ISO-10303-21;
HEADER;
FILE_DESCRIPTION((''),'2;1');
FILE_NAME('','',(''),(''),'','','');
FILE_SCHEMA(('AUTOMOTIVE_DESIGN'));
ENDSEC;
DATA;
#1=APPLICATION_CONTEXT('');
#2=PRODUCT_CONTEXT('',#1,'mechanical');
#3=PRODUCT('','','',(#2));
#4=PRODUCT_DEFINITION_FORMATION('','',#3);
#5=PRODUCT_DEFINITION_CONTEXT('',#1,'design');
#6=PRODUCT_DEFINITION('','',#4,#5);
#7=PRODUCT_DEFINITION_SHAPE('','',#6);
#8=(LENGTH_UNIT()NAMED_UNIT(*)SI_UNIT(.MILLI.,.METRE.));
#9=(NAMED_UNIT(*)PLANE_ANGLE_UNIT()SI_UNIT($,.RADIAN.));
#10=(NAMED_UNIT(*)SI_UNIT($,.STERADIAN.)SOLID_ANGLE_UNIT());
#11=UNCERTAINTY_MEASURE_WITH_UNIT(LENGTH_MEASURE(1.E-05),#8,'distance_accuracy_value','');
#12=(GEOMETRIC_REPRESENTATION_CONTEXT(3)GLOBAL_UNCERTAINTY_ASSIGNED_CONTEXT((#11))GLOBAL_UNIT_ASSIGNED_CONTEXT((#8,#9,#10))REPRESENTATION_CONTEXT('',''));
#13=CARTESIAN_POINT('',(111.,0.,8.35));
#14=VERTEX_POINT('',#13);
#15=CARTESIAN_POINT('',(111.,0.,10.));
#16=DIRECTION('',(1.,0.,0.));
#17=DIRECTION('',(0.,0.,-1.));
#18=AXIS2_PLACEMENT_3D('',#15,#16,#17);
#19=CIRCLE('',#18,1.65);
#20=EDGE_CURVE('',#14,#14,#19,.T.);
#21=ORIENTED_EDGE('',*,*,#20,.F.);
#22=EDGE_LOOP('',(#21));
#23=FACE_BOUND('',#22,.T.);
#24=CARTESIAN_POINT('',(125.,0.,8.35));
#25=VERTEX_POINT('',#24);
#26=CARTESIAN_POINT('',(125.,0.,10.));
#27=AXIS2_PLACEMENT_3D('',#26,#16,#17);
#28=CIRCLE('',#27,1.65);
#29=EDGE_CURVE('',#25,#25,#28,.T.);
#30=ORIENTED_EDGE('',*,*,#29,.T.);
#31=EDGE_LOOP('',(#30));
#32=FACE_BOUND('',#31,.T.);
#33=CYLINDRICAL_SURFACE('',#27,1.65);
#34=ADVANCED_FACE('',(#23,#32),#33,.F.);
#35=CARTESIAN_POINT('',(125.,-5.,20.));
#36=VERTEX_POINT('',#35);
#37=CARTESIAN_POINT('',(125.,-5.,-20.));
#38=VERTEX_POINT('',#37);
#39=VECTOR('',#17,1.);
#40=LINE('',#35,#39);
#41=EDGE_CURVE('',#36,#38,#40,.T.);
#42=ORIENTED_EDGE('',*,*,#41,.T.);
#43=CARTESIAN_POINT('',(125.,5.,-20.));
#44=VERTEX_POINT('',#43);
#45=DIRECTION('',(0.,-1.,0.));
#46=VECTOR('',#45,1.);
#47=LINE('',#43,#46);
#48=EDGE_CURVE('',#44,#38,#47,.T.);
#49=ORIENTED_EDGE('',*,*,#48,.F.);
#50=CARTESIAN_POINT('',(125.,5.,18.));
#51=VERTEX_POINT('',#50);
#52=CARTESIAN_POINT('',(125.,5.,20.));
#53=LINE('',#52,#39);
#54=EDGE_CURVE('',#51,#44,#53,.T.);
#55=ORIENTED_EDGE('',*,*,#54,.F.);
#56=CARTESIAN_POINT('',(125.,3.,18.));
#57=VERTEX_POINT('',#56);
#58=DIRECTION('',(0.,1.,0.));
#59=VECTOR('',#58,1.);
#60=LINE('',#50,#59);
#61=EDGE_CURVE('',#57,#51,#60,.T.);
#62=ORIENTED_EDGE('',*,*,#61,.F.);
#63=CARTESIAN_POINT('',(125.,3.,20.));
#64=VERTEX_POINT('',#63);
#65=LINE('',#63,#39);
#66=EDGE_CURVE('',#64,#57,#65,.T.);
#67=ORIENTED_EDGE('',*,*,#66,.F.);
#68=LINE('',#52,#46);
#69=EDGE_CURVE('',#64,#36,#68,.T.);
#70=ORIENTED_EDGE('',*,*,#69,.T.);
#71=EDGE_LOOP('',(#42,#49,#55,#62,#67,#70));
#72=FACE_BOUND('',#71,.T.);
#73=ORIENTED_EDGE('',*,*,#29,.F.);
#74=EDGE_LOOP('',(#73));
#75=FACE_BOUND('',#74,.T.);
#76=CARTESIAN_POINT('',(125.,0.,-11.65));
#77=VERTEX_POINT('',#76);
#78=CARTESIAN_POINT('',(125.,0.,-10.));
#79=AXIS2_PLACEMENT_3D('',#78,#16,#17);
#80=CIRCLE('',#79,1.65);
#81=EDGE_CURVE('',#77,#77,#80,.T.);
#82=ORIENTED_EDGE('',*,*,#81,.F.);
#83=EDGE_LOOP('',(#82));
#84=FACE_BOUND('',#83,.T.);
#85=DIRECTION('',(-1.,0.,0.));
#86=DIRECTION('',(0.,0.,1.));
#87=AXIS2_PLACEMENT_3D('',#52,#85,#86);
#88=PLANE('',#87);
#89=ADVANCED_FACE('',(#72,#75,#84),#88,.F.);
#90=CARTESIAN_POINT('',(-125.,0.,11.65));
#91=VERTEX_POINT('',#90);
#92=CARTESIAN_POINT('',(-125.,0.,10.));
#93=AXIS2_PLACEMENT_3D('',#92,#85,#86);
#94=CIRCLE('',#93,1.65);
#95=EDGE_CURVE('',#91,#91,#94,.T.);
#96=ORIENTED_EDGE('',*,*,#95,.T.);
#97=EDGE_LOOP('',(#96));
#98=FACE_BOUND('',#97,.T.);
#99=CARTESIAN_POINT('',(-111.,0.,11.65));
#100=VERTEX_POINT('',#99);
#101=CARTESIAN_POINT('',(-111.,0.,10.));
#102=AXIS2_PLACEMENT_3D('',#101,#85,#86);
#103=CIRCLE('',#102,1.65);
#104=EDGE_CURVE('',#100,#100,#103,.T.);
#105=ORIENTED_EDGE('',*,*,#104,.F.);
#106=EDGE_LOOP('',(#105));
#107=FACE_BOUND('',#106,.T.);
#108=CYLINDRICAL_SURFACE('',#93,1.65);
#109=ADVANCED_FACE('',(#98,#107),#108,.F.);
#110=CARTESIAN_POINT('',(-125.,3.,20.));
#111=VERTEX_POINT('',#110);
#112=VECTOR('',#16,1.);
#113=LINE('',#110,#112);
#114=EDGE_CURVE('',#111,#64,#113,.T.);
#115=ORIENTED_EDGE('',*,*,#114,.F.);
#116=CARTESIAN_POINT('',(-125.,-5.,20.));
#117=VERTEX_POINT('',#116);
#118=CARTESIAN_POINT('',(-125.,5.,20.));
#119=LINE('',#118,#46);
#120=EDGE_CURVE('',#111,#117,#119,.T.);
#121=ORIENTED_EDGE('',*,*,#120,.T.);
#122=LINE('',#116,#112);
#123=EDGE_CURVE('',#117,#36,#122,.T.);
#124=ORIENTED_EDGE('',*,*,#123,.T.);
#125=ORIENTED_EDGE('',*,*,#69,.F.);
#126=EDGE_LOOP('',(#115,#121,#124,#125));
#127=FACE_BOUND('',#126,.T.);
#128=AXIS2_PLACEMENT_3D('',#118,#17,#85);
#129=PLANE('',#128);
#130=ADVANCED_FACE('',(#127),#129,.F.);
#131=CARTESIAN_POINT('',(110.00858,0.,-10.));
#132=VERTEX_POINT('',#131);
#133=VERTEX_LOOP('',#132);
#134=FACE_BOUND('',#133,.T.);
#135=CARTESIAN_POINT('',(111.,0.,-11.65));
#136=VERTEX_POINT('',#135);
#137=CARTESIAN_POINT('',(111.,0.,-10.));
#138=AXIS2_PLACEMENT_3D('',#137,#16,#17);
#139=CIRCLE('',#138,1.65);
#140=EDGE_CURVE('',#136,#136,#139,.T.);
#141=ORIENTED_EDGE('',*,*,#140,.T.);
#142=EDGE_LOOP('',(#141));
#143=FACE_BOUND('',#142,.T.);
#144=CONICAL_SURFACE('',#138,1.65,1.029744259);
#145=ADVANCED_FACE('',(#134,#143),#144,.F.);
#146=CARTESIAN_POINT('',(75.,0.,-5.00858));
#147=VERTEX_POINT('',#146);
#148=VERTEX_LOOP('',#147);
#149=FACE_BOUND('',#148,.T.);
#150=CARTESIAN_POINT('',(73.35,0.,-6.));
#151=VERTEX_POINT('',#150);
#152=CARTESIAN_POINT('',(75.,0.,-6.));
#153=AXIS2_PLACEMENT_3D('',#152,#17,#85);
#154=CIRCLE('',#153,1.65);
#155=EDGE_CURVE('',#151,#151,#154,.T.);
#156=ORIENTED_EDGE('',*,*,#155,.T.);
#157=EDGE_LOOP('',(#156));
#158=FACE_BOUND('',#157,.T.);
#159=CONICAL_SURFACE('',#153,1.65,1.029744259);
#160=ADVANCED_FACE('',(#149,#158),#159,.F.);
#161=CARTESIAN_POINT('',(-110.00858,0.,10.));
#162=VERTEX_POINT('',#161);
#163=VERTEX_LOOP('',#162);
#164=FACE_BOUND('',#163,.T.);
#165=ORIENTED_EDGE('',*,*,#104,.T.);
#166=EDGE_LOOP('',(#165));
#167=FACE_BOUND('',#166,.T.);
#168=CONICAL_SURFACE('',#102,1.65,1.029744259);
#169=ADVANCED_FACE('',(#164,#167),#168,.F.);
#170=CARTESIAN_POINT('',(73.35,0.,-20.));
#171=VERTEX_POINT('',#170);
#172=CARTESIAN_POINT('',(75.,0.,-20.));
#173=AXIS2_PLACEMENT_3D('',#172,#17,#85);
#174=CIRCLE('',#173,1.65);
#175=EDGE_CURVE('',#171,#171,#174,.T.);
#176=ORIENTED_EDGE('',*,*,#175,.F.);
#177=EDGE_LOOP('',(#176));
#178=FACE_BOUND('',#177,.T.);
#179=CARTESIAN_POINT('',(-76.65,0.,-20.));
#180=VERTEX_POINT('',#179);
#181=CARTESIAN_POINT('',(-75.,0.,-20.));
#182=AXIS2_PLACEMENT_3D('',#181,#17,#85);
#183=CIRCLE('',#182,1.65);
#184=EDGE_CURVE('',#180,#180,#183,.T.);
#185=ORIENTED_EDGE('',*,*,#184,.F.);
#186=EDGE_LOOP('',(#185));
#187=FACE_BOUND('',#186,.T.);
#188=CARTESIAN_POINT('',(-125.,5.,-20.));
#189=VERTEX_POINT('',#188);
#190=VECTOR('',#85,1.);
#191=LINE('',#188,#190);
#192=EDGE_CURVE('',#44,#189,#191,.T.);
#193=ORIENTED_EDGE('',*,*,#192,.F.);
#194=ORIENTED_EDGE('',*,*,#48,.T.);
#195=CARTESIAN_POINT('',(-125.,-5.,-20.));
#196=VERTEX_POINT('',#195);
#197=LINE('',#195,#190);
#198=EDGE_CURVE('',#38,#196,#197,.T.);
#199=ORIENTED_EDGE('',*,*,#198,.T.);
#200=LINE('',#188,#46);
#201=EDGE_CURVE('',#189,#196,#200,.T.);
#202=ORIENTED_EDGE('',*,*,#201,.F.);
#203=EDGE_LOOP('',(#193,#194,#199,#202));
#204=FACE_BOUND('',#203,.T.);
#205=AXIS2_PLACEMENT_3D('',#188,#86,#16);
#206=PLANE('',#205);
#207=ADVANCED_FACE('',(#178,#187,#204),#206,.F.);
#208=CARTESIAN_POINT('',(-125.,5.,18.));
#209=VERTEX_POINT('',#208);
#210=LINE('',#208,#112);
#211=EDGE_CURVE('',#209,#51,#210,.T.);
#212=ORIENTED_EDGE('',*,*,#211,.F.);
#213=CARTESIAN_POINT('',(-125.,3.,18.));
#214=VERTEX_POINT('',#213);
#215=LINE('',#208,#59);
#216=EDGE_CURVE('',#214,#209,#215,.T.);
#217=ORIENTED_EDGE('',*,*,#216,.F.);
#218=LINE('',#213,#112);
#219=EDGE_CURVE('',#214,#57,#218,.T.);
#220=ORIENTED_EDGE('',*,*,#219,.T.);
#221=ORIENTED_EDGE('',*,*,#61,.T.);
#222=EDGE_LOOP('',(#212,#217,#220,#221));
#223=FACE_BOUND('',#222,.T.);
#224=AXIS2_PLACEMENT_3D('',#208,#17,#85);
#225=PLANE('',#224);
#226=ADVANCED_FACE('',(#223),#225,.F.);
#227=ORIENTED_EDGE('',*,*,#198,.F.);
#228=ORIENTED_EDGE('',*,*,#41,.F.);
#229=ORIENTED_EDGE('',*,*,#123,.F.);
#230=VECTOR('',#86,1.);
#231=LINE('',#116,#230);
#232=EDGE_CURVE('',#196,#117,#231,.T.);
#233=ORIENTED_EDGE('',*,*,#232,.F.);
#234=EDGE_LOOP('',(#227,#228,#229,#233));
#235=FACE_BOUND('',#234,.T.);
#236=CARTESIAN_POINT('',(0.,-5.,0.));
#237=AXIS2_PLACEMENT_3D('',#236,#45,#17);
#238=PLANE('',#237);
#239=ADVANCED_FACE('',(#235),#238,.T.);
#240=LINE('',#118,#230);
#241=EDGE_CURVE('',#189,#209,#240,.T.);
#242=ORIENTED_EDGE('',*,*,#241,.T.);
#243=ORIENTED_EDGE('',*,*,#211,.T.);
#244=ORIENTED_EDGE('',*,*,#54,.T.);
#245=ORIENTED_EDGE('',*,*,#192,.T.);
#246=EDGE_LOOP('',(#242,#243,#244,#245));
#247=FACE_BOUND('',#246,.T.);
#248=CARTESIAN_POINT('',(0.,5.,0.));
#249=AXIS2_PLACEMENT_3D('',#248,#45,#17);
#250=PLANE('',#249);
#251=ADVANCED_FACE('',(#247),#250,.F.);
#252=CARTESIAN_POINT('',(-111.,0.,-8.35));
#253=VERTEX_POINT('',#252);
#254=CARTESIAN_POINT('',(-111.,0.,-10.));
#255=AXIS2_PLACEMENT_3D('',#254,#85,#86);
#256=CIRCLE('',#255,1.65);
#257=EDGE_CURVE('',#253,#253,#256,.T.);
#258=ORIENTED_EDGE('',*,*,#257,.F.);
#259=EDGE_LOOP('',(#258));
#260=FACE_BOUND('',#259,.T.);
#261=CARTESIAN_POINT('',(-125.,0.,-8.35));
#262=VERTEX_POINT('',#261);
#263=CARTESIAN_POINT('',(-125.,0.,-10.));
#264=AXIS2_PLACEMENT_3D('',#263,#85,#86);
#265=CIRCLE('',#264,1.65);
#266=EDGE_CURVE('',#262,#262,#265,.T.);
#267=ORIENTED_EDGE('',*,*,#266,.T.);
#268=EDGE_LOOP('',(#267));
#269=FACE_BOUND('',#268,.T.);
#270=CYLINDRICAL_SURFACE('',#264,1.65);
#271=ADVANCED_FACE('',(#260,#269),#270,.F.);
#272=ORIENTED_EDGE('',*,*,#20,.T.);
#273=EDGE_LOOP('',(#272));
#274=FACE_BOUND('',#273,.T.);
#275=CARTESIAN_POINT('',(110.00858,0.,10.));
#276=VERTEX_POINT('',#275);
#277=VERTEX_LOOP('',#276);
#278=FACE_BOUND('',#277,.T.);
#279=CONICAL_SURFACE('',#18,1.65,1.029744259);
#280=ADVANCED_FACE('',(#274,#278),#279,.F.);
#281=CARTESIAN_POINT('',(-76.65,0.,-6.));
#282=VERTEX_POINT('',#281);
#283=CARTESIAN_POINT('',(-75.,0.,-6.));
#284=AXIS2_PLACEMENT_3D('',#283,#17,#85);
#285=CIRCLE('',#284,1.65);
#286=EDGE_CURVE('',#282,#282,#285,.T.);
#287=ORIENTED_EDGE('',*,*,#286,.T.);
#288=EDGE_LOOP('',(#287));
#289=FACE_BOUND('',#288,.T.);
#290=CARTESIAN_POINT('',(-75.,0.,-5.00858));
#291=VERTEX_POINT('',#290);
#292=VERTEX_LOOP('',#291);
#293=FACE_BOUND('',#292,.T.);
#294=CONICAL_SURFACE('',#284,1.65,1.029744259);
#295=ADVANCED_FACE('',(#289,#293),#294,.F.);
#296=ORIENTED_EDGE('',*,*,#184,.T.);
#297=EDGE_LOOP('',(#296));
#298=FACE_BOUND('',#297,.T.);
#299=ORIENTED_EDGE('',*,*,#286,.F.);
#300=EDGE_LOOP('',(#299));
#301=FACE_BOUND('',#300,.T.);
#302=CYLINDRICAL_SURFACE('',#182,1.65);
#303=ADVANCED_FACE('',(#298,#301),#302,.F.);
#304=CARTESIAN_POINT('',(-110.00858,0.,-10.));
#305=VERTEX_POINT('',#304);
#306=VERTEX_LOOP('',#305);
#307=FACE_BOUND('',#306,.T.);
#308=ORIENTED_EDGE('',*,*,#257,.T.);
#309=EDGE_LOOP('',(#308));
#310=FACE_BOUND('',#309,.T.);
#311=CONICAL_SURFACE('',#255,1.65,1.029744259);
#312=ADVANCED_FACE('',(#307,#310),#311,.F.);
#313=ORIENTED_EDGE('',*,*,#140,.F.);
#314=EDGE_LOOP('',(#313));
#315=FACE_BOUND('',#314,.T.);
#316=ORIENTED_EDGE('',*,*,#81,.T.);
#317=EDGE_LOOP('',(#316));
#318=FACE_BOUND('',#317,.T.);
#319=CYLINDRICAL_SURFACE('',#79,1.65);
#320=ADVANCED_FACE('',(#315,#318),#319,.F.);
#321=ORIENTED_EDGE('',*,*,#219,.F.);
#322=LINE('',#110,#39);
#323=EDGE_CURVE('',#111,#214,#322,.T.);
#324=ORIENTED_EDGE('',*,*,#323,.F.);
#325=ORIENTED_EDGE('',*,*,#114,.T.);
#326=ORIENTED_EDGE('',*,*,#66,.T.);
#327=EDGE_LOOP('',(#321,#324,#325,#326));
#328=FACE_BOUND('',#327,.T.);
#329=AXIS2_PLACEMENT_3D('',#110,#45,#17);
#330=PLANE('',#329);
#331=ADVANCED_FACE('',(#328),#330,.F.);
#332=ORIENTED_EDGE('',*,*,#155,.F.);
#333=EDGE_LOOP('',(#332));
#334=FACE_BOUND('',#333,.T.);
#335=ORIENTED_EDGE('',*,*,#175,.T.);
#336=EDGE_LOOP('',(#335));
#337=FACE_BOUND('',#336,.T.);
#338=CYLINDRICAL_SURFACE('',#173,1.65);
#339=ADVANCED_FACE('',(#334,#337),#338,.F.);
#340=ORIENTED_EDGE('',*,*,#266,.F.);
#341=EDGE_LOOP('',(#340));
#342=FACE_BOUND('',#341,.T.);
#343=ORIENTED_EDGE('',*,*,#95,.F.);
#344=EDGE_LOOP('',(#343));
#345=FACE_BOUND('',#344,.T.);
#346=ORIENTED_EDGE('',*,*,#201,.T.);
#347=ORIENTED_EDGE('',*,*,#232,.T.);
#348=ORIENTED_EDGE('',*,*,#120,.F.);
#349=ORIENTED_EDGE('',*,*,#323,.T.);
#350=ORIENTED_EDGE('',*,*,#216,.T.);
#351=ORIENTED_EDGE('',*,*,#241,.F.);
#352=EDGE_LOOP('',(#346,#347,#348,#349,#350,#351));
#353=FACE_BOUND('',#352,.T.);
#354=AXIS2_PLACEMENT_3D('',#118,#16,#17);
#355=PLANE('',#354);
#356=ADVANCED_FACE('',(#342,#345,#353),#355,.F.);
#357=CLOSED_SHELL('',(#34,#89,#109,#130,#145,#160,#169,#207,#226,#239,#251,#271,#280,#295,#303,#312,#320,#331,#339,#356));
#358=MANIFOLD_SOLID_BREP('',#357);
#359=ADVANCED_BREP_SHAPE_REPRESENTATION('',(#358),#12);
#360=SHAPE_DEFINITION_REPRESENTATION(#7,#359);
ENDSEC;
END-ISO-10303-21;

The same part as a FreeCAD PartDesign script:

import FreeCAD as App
import Part
import Sketcher

V = App.Vector
Q = App.Units.Quantity


def add_polygon(sketch, points):
    """Adds a closed chain of lines whose ends are joined by coincident constraints."""
    first, n = sketch.GeometryCount, len(points)
    for a, b in zip(points, points[1:] + points[:1]):
        sketch.addGeometry(Part.LineSegment(App.Vector(*a, 0), App.Vector(*b, 0)), False)
    for i in range(n):
        sketch.addConstraint(Sketcher.Constraint("Coincident", first + i, 2, first + (i + 1) % n, 1))

doc = App.newDocument("Part")
body = doc.addObject("PartDesign::Body", "Body")

# Sketch on XZ plane
sketch1 = body.newObject("Sketcher::SketchObject", "Sketch")
sketch1.AttachmentSupport = (doc.getObject("XZ_Plane"), [""])
sketch1.MapMode = "FlatFace"
add_polygon(sketch1, [(-125, -20), (-125, 20), (125, 20), (125, -20)])  # lines 0-3
sketch1.addConstraint([
    Sketcher.Constraint("Vertical", 0),
    Sketcher.Constraint("Horizontal", 1),
    Sketcher.Constraint("Vertical", 2),
    Sketcher.Constraint("Horizontal", 3),
    Sketcher.Constraint("Symmetric", 0, 2, 2, 2, -1, 1),
    Sketcher.Constraint("DistanceX", 1, 1, 1, 2, 250.0),
    Sketcher.Constraint("DistanceY", 0, 1, 0, 2, 40.0),
])
pad1 = body.newObject("PartDesign::Pad", "Pad")
pad1.Profile = sketch1
pad1.Length = 10
pad1.Midplane = True

# Sketch on YZ plane
sketch2 = body.newObject("Sketcher::SketchObject", "Sketch001")
sketch2.AttachmentSupport = (doc.getObject("YZ_Plane"), [""])
sketch2.MapMode = "FlatFace"
add_polygon(sketch2, [(5, 20), (3, 20), (3, 18), (5, 18)])  # lines 0-3
sketch2.addConstraint([
    Sketcher.Constraint("Horizontal", 0),
    Sketcher.Constraint("Vertical", 1),
    Sketcher.Constraint("Horizontal", 2),
    Sketcher.Constraint("Vertical", 3),
    Sketcher.Constraint("Equal", 2, 1),
    Sketcher.Constraint("DistanceX", 0, 2, 0, 1, 2.0),
    Sketcher.Constraint("DistanceX", -1, 1, 0, 2, 3.0),
    Sketcher.Constraint("DistanceY", -1, 1, 0, 2, 20.0),
])
pocket1 = body.newObject("PartDesign::Pocket", "Pocket")
pocket1.Profile = sketch2
pocket1.Type = "ThroughAll"
pocket1.Midplane = True

# Sketch on XZ plane
sketch3 = body.newObject("Sketcher::SketchObject", "Sketch002")
sketch3.AttachmentSupport = (doc.getObject("XZ_Plane"), [""])
sketch3.MapMode = "FlatFace"
add_polygon(sketch3, [(110.00858, -10), (125, -10), (125, -11.65), (111, -11.65)])  # lines 0-3
sketch3.addGeometry(Part.LineSegment(V(125, -10, 0), V(110.00858, -10, 0)), True)  # axis
sketch3.addConstraint([
    Sketcher.Constraint("Horizontal", 0),
    Sketcher.Constraint("Vertical", 1),
    Sketcher.Constraint("Horizontal", 2),
    Sketcher.Constraint("Horizontal", 4),
    Sketcher.Constraint("Coincident", 4, 1, 0, 2),
    Sketcher.Constraint("Equal", 0, 4),
    Sketcher.Constraint("DistanceX", 2, 2, 2, 1, 14.0),
    Sketcher.Constraint("Angle", 3, Q("121 deg")),
    Sketcher.Constraint("DistanceX", -1, 1, 0, 2, 125.0),
    Sketcher.Constraint("DistanceY", 0, 2, -1, 1, 10.0),
    Sketcher.Constraint("DistanceY", 1, 2, 1, 1, 1.65),
])
groove = body.newObject("PartDesign::Groove", "Groove")
groove.Profile = sketch3
groove.ReferenceAxis = (sketch3, ["Axis0"])
groove.Angle = 360
doc.recompute()

linearpattern = body.newObject("PartDesign::LinearPattern", "LinearPattern")
linearpattern.Originals = [groove]
linearpattern.Direction = (doc.getObject("Z_Axis"), [""])
linearpattern.Mode = "offset"
linearpattern.Offset = 20
linearpattern.Occurrences = 2
body.Tip = linearpattern
doc.recompute()

mirrored = body.newObject("PartDesign::Mirrored", "Mirrored")
mirrored.Originals = [groove]
mirrored.MirrorPlane = (doc.getObject("YZ_Plane"), [""])
body.Tip = mirrored

# Sketch on XZ plane
sketch4 = body.newObject("Sketcher::SketchObject", "Sketch003")
sketch4.AttachmentSupport = (doc.getObject("XZ_Plane"), [""])
sketch4.MapMode = "FlatFace"
add_polygon(sketch4, [(-125, 10), (-110.00858, 10), (-111, 8.35), (-125, 8.35)])  # lines 0-3
sketch4.addGeometry(Part.LineSegment(V(-110.00858, 10, 0), V(-125, 10, 0)), True)  # axis
sketch4.addConstraint([
    Sketcher.Constraint("Horizontal", 0),
    Sketcher.Constraint("Horizontal", 2),
    Sketcher.Constraint("Vertical", 3),
    Sketcher.Constraint("Horizontal", 4),
    Sketcher.Constraint("Coincident", 4, 1, 0, 2),
    Sketcher.Constraint("Vertical", 2, 2, 4, 2),
    Sketcher.Constraint("DistanceX", 2, 2, 2, 1, 14.0),
    Sketcher.Constraint("Angle", 1, Q("-121 deg")),
    Sketcher.Constraint("DistanceY", -1, 1, 0, 2, 10.0),
    Sketcher.Constraint("DistanceX", 1, 2, -1, 1, 111.0),
    Sketcher.Constraint("DistanceY", 3, 1, 3, 2, 1.65),
])
groove2 = body.newObject("PartDesign::Groove", "Groove001")
groove2.Profile = sketch4
groove2.ReferenceAxis = (sketch4, ["Axis0"])
groove2.Angle = 360

# Sketch on XY plane
sketch5 = body.newObject("Sketcher::SketchObject", "Sketch004")
sketch5.AttachmentSupport = (doc.getObject("XY_Plane"), [""])
sketch5.MapMode = "FlatFace"
sketch5.AttachmentOffset = App.Placement(V(0, 0, -20), App.Rotation())
sketch5.addGeometry([
    Part.Circle(V(75, 0, 0), V(0, 0, 1), 1.65),
    Part.Circle(V(-75, 0, 0), V(0, 0, 1), 1.65),
], False)
sketch5.addConstraint([
    Sketcher.Constraint("Equal", 0, 1),
    Sketcher.Constraint("Symmetric", 0, 3, 1, 3, -1, 1),
    Sketcher.Constraint("PointOnObject", 0, 3, -1),
    Sketcher.Constraint("Diameter", 0, 3.3),
    Sketcher.Constraint("DistanceX", -1, 1, 0, 3, 75.0),
])
doc.recompute()
hole = body.newObject("PartDesign::Hole", "Hole")
hole.Profile = sketch5
hole.ThreadType = "None"
hole.Diameter = 3.3
hole.DepthType = "Dimension"
hole.Depth = 14
hole.DrillPoint = "Angled"
hole.DrillPointAngle = 118
hole.Reversed = True

doc.recompute()
